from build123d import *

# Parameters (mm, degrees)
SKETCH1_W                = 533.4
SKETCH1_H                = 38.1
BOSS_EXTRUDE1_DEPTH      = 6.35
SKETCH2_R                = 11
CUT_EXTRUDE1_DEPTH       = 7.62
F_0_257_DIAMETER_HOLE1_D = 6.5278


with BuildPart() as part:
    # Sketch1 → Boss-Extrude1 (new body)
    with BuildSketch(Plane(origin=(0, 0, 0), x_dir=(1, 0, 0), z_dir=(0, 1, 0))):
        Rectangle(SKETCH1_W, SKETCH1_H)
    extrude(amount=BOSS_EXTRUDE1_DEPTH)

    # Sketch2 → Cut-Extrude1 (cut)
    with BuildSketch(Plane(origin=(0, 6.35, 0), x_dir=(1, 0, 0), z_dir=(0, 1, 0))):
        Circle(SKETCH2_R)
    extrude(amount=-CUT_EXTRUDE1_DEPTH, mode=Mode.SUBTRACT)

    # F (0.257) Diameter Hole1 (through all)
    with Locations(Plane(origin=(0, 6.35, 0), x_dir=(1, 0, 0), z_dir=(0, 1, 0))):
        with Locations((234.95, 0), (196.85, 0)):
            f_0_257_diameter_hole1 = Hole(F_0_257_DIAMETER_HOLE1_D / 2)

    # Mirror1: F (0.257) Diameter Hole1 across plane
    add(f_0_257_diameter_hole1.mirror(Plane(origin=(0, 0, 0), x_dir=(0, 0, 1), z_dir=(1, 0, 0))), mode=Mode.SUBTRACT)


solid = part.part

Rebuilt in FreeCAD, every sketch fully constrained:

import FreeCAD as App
import Part
import Sketcher
Q = App.Units.Quantity


def add_polygon(sketch, points):
    """Adds a closed chain of lines whose ends are joined by coincident constraints."""
    first, n = sketch.GeometryCount, len(points)
    for a, b in zip(points, points[1:] + points[:1]):
        sketch.addGeometry(Part.LineSegment(App.Vector(*a, 0), App.Vector(*b, 0)), False)
    for i in range(n):
        sketch.addConstraint(Sketcher.Constraint("Coincident", first + i, 2, first + (i + 1) % n, 1))

doc = App.newDocument("Part")
body = doc.addObject("PartDesign::Body", "Body")

# Sketch on XZ plane
sketch1 = doc.addObject("Sketcher::SketchObject", "Sketch")
body.addObject(sketch1)
sketch1.AttachmentSupport = (doc.XZ_Plane, [""])
sketch1.MapMode = "FlatFace"
add_polygon(sketch1, [(-266.7, -19.05), (-266.7, 19.05), (266.7, 19.05), (266.7, -19.05)])  # lines 0-3
sketch1.addConstraint(Sketcher.Constraint("Vertical", 0))
sketch1.addConstraint(Sketcher.Constraint("Horizontal", 1))
sketch1.addConstraint(Sketcher.Constraint("Vertical", 2))
sketch1.addConstraint(Sketcher.Constraint("Horizontal", 3))
sketch1.addConstraint(Sketcher.Constraint("Symmetric", 0, 2, 2, 2, -1, 1))
sketch1.addConstraint(Sketcher.Constraint("DistanceX", 1, 1, 1, 2, Q("21 in")))
sketch1.addConstraint(Sketcher.Constraint("DistanceY", 0, 1, 0, 2, Q("1.5 in")))
pad1 = doc.addObject("PartDesign::Pad", "Pad")
body.addObject(pad1)
pad1.Profile = sketch1
pad1.Length = Q("0.25 in")
pad1.Reversed = True

# Sketch on XZ plane
sketch2 = doc.addObject("Sketcher::SketchObject", "Sketch001")
body.addObject(sketch2)
sketch2.AttachmentSupport = (doc.XZ_Plane, [""])
sketch2.MapMode = "FlatFace"
sketch2.AttachmentOffset = App.Placement(App.Vector(0, 0, -0.25 * 25.4), App.Rotation())
sketch2.addGeometry(Part.Circle(App.Vector(0, 0, 0), App.Vector(0, 0, 1), 11), False)
sketch2.addConstraint(Sketcher.Constraint("Coincident", 0, 3, -1, 1))
sketch2.addConstraint(Sketcher.Constraint("Diameter", 0, 22.0))
pocket1 = doc.addObject("PartDesign::Pocket", "Pocket")
body.addObject(pocket1)
pocket1.Profile = sketch2
pocket1.Length = Q("0.3 in")
pocket1.Reversed = True

# Sketch on XZ plane
sketch3 = doc.addObject("Sketcher::SketchObject", "Sketch002")
body.addObject(sketch3)
sketch3.AttachmentSupport = (doc.XZ_Plane, [""])
sketch3.MapMode = "FlatFace"
sketch3.AttachmentOffset = App.Placement(App.Vector(0, 0, -0.25 * 25.4), App.Rotation())
sketch3.addGeometry(Part.Circle(App.Vector(234.95, 0, 0), App.Vector(0, 0, 1), 3.2639), False)
sketch3.addGeometry(Part.Circle(App.Vector(196.85, 0, 0), App.Vector(0, 0, 1), 3.2639), False)
sketch3.addConstraint(Sketcher.Constraint("Equal", 0, 1))
sketch3.addConstraint(Sketcher.Constraint("PointOnObject", 0, 3, -1))
sketch3.addConstraint(Sketcher.Constraint("PointOnObject", 1, 3, -1))
sketch3.addConstraint(Sketcher.Constraint("Diameter", 0, Q("0.257 in")))
sketch3.addConstraint(Sketcher.Constraint("DistanceX", 1, 3, 0, 3, Q("1.5 in")))
sketch3.addConstraint(Sketcher.Constraint("DistanceX", -1, 1, 0, 3, Q("9.25 in")))
doc.recompute()
hole = doc.addObject("PartDesign::Hole", "Hole")
body.addObject(hole)
hole.Profile = sketch3
hole.ThreadType = "None"
hole.Diameter = Q("0.257 in")
hole.DepthType = "ThroughAll"
hole.Reversed = True
doc.recompute()

mirrored = doc.addObject("PartDesign::Mirrored", "Mirrored")
body.addObject(mirrored)
mirrored.Originals = [hole]
mirrored.MirrorPlane = (doc.YZ_Plane, [""])
body.Tip = mirrored

doc.recompute()
